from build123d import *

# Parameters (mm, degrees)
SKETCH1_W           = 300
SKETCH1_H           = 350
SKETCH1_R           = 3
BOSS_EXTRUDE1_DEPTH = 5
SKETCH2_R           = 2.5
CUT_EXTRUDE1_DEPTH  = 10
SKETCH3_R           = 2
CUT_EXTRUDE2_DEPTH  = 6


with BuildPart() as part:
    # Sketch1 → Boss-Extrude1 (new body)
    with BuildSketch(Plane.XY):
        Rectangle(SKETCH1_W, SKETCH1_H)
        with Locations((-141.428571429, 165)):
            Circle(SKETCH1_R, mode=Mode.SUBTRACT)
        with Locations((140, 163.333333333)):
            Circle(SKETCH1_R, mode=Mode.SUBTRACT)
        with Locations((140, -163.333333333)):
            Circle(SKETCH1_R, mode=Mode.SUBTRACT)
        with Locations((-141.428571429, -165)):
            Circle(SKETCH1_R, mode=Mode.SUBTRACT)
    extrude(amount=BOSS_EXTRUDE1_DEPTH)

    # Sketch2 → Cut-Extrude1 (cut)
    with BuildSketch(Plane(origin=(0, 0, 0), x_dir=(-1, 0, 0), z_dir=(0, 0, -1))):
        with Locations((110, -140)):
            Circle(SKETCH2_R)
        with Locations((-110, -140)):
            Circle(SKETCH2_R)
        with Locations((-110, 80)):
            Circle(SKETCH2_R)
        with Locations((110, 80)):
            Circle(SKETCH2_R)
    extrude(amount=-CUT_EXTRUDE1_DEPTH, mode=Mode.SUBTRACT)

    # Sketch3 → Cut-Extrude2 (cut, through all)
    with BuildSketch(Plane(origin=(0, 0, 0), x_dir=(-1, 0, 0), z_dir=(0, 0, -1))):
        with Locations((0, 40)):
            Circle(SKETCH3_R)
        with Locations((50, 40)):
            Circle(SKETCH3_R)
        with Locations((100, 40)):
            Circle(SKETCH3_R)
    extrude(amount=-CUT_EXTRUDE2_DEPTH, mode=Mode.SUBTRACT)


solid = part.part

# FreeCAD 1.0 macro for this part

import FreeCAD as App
import Part
import Sketcher

V = App.Vector
Q = App.Units.Quantity

doc = App.newDocument("Part")
params = doc.addObject("Spreadsheet::Sheet", "Params")
for row, (alias, value) in enumerate([
    ("sketch1_diameter", "6 mm"),
    ("sketch1_width", "300 mm"),
    ("sketch1_height", "350 mm"),
    ("pad1_length", "5 mm"),
    ("sketch2_diameter", "5 mm"),
    ("pocket1_length", "10 mm"),
    ("sketch3_diameter", "4 mm"),
], start=1):
    params.set(f"A{row}", alias)
    params.set(f"B{row}", "=" + value)
    params.setAlias(f"B{row}", alias)

body = doc.addObject("PartDesign::Body", "Body")

# Sketch on XY plane
sketch1 = doc.addObject("Sketcher::SketchObject", "Sketch")
body.addObject(sketch1)
sketch1.AttachmentSupport = (doc.XY_Plane, [""])
sketch1.MapMode = "FlatFace"
sketch1.addGeometry([
    Part.LineSegment(V(-150, 175, 0), V(-150, -175, 0)),  # 0
    Part.LineSegment(V(-150, -175, 0), V(150, -175, 0)),  # 1
    Part.LineSegment(V(150, -175, 0), V(150, 175, 0)),  # 2
    Part.LineSegment(V(150, 175, 0), V(-150, 175, 0)),  # 3
    Part.Circle(V(-141.4, -165, 0), V(0, 0, 1), 3),  # 4
    Part.Circle(V(140, -163.3, 0), V(0, 0, 1), 3),  # 5
    Part.Circle(V(-141.4, 165, 0), V(0, 0, 1), 3),  # 6
    Part.Circle(V(140, 163.3, 0), V(0, 0, 1), 3),  # 7
], False)
sketch1.addConstraint([
    Sketcher.Constraint("Coincident", 0, 2, 1, 1),
    Sketcher.Constraint("Coincident", 1, 2, 2, 1),
    Sketcher.Constraint("Coincident", 2, 2, 3, 1),
    Sketcher.Constraint("Coincident", 3, 2, 0, 1),
    Sketcher.Constraint("Vertical", 0),
    Sketcher.Constraint("Horizontal", 1),
    Sketcher.Constraint("Vertical", 2),
    Sketcher.Constraint("Horizontal", 3),
    Sketcher.Constraint("Equal", 4, 5),
    Sketcher.Constraint("Equal", 5, 6),
    Sketcher.Constraint("Equal", 6, 7),
    Sketcher.Constraint("Symmetric", 0, 2, 2, 2, -1, 1),
    Sketcher.Constraint("Symmetric", 4, 3, 6, 3, -1),
    Sketcher.Constraint("Symmetric", 5, 3, 7, 3, -1),
    Sketcher.Constraint("Diameter", 4, Q("6 mm")),
    Sketcher.Constraint("DistanceX", 1, 1, 1, 2, Q("300 mm")),
    Sketcher.Constraint("DistanceY", 0, 2, 0, 1, Q("350 mm")),
    Sketcher.Constraint("DistanceY", 4, 3, -1, 1, Q("165 mm")),
    Sketcher.Constraint("DistanceX", -1, 1, 5, 3, Q("140 mm")),
    Sketcher.Constraint("DistanceX", 4, 3, -1, 1, Q("141.428571 mm")),
    Sketcher.Constraint("DistanceY", 5, 3, -1, 1, Q("163.333333 mm")),
])
sketch1.setExpression("Constraints[14]", "Params.sketch1_diameter")
sketch1.setExpression("Constraints[15]", "Params.sketch1_width")
sketch1.setExpression("Constraints[16]", "Params.sketch1_height")
pad1 = doc.addObject("PartDesign::Pad", "Pad")
body.addObject(pad1)
pad1.Profile = sketch1
pad1.setExpression("Length", "Params.pad1_length")

# Sketch on XY plane
sketch2 = doc.addObject("Sketcher::SketchObject", "Sketch001")
body.addObject(sketch2)
sketch2.AttachmentSupport = (doc.XY_Plane, [""])
sketch2.MapMode = "FlatFace"
sketch2.addGeometry([
    Part.Circle(V(-110, -140, 0), V(0, 0, 1), 2.5),
    Part.Circle(V(110, -140, 0), V(0, 0, 1), 2.5),
    Part.Circle(V(110, 80, 0), V(0, 0, 1), 2.5),
    Part.Circle(V(-110, 80, 0), V(0, 0, 1), 2.5),
], False)
sketch2.addConstraint([
    Sketcher.Constraint("Equal", 0, 1),
    Sketcher.Constraint("Equal", 1, 2),
    Sketcher.Constraint("Equal", 2, 3),
    Sketcher.Constraint("Symmetric", 0, 3, 1, 3, -2),
    Sketcher.Constraint("Symmetric", 2, 3, 3, 3, -2),
    Sketcher.Constraint("Vertical", 1, 3, 2, 3),
    Sketcher.Constraint("Diameter", 0, Q("5 mm")),
    Sketcher.Constraint("DistanceX", 0, 3, -1, 1, Q("110 mm")),
    Sketcher.Constraint("DistanceY", 0, 3, -1, 1, Q("140 mm")),
    Sketcher.Constraint("DistanceY", -1, 1, 2, 3, Q("80 mm")),
])
sketch2.setExpression("Constraints[6]", "Params.sketch2_diameter")
pocket1 = doc.addObject("PartDesign::Pocket", "Pocket")
body.addObject(pocket1)
pocket1.Profile = sketch2
pocket1.setExpression("Length", "Params.pocket1_length")
pocket1.Reversed = True

# Sketch on XY plane
sketch3 = doc.addObject("Sketcher::SketchObject", "Sketch002")
body.addObject(sketch3)
sketch3.AttachmentSupport = (doc.XY_Plane, [""])
sketch3.MapMode = "FlatFace"
sketch3.addGeometry([
    Part.Circle(V(0, 40, 0), V(0, 0, 1), 2),
    Part.Circle(V(-50, 40, 0), V(0, 0, 1), 2),
    Part.Circle(V(-100, 40, 0), V(0, 0, 1), 2),
], False)
sketch3.addConstraint([
    Sketcher.Constraint("Equal", 0, 1),
    Sketcher.Constraint("Equal", 1, 2),
    Sketcher.Constraint("PointOnObject", 0, 3, -2),
    Sketcher.Constraint("Horizontal", 0, 3, 1, 3),
    Sketcher.Constraint("Horizontal", 1, 3, 2, 3),
    Sketcher.Constraint("Diameter", 0, Q("4 mm")),
    Sketcher.Constraint("DistanceY", -1, 1, 0, 3, Q("40 mm")),
    Sketcher.Constraint("DistanceX", 1, 3, -1, 1, Q("50 mm")),
    Sketcher.Constraint("DistanceX", 2, 3, -1, 1, Q("100 mm")),
])
sketch3.setExpression("Constraints[5]", "Params.sketch3_diameter")
pocket2 = doc.addObject("PartDesign::Pocket", "Pocket001")
body.addObject(pocket2)
pocket2.Profile = sketch3
pocket2.Type = "ThroughAll"
pocket2.Reversed = True

doc.recompute()
